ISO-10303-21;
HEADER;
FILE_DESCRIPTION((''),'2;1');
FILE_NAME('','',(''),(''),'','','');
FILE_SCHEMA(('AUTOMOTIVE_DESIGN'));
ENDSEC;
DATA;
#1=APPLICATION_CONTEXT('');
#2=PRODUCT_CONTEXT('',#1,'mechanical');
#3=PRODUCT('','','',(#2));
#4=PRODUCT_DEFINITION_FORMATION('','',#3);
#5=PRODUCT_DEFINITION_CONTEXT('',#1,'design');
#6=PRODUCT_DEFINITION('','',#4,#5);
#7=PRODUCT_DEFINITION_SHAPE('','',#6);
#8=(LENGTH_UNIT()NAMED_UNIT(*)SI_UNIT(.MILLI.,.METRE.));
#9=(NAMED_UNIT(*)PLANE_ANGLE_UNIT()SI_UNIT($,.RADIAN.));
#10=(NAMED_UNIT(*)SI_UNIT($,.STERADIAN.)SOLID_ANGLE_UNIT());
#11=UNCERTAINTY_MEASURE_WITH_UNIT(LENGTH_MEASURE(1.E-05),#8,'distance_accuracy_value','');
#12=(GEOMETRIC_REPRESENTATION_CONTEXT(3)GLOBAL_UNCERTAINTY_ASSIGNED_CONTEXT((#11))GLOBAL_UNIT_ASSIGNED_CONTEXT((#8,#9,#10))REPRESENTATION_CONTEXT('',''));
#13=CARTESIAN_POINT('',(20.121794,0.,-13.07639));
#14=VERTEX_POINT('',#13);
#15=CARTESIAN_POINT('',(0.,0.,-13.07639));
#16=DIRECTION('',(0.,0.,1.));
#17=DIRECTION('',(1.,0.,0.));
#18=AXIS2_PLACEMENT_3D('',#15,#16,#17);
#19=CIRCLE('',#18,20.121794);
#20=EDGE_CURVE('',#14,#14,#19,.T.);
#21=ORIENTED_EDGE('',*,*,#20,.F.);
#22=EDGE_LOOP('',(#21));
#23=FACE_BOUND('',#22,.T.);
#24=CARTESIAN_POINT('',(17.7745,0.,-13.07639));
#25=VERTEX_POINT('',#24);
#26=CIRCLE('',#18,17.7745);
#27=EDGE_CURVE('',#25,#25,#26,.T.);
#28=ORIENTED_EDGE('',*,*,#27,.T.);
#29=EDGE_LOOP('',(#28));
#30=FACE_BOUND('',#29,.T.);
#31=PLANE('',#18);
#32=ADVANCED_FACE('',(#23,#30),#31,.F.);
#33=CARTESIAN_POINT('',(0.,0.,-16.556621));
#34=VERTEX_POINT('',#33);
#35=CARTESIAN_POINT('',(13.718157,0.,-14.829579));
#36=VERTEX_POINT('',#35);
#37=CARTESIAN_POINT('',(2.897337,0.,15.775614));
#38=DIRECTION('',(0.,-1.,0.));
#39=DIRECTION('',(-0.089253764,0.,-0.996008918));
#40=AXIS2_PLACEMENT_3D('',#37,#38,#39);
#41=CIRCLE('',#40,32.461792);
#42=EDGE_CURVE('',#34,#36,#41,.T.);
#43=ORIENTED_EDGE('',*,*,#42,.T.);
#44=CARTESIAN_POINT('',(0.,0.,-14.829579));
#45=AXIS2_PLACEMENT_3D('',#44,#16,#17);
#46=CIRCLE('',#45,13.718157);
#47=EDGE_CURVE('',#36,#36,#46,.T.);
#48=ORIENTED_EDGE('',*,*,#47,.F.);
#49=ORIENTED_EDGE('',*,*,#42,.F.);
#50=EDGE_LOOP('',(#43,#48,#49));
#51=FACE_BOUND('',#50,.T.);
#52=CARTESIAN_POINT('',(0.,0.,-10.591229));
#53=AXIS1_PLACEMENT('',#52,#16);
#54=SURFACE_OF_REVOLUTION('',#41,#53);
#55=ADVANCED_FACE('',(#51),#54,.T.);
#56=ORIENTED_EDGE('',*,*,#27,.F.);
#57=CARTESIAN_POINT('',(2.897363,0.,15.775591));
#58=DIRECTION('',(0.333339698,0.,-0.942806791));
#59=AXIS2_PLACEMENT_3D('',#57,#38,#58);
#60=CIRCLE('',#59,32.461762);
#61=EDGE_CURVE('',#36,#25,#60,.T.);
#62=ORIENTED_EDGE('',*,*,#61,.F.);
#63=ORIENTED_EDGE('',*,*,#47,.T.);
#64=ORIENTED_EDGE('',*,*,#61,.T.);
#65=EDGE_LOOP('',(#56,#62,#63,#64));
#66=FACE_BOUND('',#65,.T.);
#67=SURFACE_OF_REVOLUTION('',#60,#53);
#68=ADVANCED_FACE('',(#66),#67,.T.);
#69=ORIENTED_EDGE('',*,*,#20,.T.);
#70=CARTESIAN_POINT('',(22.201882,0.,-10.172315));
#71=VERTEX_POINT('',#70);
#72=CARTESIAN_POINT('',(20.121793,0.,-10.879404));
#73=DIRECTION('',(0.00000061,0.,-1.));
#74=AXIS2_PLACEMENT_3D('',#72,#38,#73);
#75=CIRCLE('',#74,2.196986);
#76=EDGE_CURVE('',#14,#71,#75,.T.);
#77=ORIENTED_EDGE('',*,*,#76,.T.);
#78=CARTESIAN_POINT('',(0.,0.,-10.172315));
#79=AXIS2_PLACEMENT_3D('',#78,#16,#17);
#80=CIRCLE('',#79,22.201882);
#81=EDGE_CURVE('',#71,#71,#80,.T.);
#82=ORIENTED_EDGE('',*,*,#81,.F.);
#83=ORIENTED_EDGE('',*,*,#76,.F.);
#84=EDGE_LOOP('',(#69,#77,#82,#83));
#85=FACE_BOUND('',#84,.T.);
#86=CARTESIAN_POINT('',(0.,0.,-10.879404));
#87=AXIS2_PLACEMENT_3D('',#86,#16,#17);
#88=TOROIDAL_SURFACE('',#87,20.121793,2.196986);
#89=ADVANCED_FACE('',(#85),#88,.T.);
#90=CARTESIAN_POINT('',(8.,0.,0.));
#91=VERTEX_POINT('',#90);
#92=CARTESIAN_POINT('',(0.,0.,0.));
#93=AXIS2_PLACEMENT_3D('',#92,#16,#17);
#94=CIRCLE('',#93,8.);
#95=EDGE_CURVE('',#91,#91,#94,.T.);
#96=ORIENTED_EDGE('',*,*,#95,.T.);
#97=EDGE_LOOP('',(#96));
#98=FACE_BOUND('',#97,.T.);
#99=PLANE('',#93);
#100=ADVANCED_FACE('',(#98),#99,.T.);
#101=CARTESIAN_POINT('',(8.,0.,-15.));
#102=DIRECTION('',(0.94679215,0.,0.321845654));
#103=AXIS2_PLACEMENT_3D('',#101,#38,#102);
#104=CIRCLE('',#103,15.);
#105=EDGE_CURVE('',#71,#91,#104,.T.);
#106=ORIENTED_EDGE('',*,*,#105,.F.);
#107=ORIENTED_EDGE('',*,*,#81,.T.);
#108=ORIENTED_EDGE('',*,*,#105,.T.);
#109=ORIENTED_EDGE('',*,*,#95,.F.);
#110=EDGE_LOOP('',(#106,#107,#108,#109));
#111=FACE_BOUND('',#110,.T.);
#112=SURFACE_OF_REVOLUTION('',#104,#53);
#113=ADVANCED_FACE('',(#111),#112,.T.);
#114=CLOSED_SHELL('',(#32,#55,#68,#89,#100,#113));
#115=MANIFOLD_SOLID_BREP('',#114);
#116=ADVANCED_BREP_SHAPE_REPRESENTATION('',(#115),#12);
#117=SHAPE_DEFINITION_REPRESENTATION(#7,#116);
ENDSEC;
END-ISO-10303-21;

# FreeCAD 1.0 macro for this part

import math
import FreeCAD as App
import Part
import Sketcher

doc = App.newDocument("Part")
body = doc.addObject("PartDesign::Body", "Body")

sketch1 = body.newObject("Sketcher::SketchObject", "Sketch")
sketch1.AttachmentSupport = (doc.getObject("XZ_Plane"), [""])
sketch1.MapMode = "FlatFace"
sketch1.addGeometry([
    Part.LineSegment(App.Vector(8, 0, 0), App.Vector(0, 0, 0)),
    Part.LineSegment(App.Vector(0, 0, 0), App.Vector(0, -16.6, 0)),
    Part.ArcOfCircle(Part.Circle(App.Vector(2.9, 15.8, 0), App.Vector(0, 0, 1), 32.5), math.radians(-95), math.radians(-71)),
    Part.ArcOfCircle(Part.Circle(App.Vector(2.9, 15.8, 0), App.Vector(0, 0, 1), 32.5), math.radians(-70.53), math.radians(-62.72)),
    Part.LineSegment(App.Vector(17.8, -13.1, 0), App.Vector(20.1, -13.1, 0)),
    Part.ArcOfCircle(Part.Circle(App.Vector(20.1, -10.9, 0), App.Vector(0, 0, 1), 2.2), math.radians(-90), math.radians(19)),
    Part.ArcOfCircle(Part.Circle(App.Vector(8, -15, 0), App.Vector(0, 0, 1), 15), math.radians(19), math.radians(90)),
], False)
sketch1.addConstraint([
    Sketcher.Constraint("Coincident", 0, 2, 1, 1),
    Sketcher.Constraint("Coincident", 1, 2, 2, 1),
    Sketcher.Constraint("Tangent", 2, 2, 3, 1),
    Sketcher.Constraint("Coincident", 3, 2, 4, 1),
    Sketcher.Constraint("Tangent", 4, 2, 5, 1),
    Sketcher.Constraint("Tangent", 5, 2, 6, 1),
    Sketcher.Constraint("Tangent", 6, 2, 0, 1),
    Sketcher.Constraint("Horizontal", 0),
    Sketcher.Constraint("Vertical", 1),
    Sketcher.Constraint("Horizontal", 4),
    Sketcher.Constraint("Coincident", 0, 2, -1, 1),
    Sketcher.Constraint("Radius", 6, 15.0),
    Sketcher.Constraint("DistanceX", 0, 2, 0, 1, 8.0),
    Sketcher.Constraint("Radius", 2, 32.461792),
    Sketcher.Constraint("Radius", 3, 32.461762),
    Sketcher.Constraint("Radius", 5, 2.196986),
    Sketcher.Constraint("DistanceY", 1, 2, 1, 1, 16.556621),
    Sketcher.Constraint("DistanceX", -1, 1, 3, 2, 17.7745),
    Sketcher.Constraint("DistanceX", 4, 1, 4, 2, 2.347294),
    Sketcher.Constraint("DistanceY", 2, 2, -1, 1, 14.829579),
])
revolution = body.newObject("PartDesign::Revolution", "Revolution")
revolution.Profile = sketch1
revolution.ReferenceAxis = (sketch1, ["V_Axis"])
revolution.Angle = 360

doc.recompute()
